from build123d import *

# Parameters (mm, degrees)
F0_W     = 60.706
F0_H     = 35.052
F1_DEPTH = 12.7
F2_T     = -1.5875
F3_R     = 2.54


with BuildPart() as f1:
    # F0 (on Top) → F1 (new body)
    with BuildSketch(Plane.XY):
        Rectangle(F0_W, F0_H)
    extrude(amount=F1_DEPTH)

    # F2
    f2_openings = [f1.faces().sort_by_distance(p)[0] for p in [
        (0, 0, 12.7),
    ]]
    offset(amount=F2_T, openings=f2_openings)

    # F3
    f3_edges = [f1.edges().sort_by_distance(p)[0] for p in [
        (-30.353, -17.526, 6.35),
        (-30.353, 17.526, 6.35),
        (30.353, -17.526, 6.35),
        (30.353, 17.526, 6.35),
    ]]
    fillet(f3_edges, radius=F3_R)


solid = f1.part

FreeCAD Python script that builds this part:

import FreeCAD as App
import Part
import Sketcher
from FreeCAD import Vector
Q = App.Units.Quantity


def edges_at(feature, points):
    """Names of the edges that pass closest to the given points."""
    edges = feature.Shape.Edges
    near = lambda p: min(range(len(edges)), key=lambda i: edges[i].distToShape(Part.Vertex(*p))[0])
    return sorted({f"Edge{near(p) + 1}" for p in points})


def faces_at(feature, points):
    """Names of the faces that lie closest to the given points."""
    faces = feature.Shape.Faces
    near = lambda p: min(range(len(faces)), key=lambda i: faces[i].distToShape(Part.Vertex(*p))[0])
    return sorted({f"Face{near(p) + 1}" for p in points})


def add_polygon(sketch, points):
    """Adds a closed chain of lines whose ends are joined by coincident constraints."""
    first, n = sketch.GeometryCount, len(points)
    for a, b in zip(points, points[1:] + points[:1]):
        sketch.addGeometry(Part.LineSegment(App.Vector(*a, 0), App.Vector(*b, 0)), False)
    for i in range(n):
        sketch.addConstraint(Sketcher.Constraint("Coincident", first + i, 2, first + (i + 1) % n, 1))

doc = App.newDocument("Part")
body = doc.addObject("PartDesign::Body", "Body")

# Sketch on XY plane
sketch1 = doc.addObject("Sketcher::SketchObject", "Sketch")
body.addObject(sketch1)
sketch1.AttachmentSupport = (doc.XY_Plane, [""])
sketch1.MapMode = "FlatFace"
add_polygon(sketch1, [(-30, 18), (-30, -18), (30, -18), (30, 18)])  # lines 0-3
sketch1.addConstraint([
    Sketcher.Constraint("Vertical", 0),
    Sketcher.Constraint("Horizontal", 1),
    Sketcher.Constraint("Vertical", 2),
    Sketcher.Constraint("Horizontal", 3),
    Sketcher.Constraint("Symmetric", 0, 2, 2, 2, -1, 1),
    Sketcher.Constraint("DistanceX", 1, 1, 1, 2, Q("2.39 in")),
    Sketcher.Constraint("DistanceY", 0, 2, 0, 1, Q("1.38 in")),
])
pad1 = doc.addObject("PartDesign::Pad", "Pad")
body.addObject(pad1)
pad1.Profile = sketch1
pad1.Length = Q("0.5 in")
doc.recompute()

thickness = doc.addObject("PartDesign::Thickness", "Thickness")
body.addObject(thickness)
thickness.Base = (pad1, faces_at(pad1, [(0, 0, 12.7)]))
thickness.Value = Q("0.0625 in")
thickness.Reversed = True
thickness.Join = "Arc"
doc.recompute()

fillet = doc.addObject("PartDesign::Fillet", "Fillet")
body.addObject(fillet)
fillet.Base = (thickness, edges_at(thickness, [
    (-30.353, -17.526, 6.35),
    (-30.353, 17.526, 6.35),
    (30.353, -17.526, 6.35),
    (30.353, 17.526, 6.35),
]))
fillet.Radius = Q("0.1 in")

doc.recompute()
